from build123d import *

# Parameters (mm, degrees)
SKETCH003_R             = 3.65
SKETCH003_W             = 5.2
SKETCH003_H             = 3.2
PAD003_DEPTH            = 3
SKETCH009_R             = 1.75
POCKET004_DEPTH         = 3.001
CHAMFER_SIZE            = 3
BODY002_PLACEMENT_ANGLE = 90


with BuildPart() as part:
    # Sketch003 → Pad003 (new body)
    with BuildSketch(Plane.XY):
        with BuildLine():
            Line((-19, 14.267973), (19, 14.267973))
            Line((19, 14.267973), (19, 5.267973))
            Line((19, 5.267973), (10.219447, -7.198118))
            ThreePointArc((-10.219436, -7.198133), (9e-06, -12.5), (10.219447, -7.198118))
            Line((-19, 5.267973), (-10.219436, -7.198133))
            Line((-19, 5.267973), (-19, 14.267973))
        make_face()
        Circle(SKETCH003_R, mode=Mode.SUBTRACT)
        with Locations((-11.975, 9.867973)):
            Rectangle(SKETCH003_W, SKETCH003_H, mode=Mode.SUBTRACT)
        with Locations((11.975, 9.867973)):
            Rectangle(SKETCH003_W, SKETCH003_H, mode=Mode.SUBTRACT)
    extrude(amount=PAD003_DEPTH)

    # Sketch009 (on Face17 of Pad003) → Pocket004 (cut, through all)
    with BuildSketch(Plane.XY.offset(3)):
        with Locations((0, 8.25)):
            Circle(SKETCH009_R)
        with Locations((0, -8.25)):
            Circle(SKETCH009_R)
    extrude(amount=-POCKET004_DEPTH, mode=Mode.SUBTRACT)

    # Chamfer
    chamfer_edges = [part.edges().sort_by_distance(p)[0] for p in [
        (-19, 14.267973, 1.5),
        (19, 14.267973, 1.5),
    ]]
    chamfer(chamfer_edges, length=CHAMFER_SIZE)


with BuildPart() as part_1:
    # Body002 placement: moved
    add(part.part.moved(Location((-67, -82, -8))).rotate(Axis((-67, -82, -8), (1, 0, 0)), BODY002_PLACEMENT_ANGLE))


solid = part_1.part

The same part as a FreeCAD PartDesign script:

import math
import FreeCAD as App
import Part
import Sketcher
from FreeCAD import Vector
Q = App.Units.Quantity


def edges_at(feature, points):
    """Names of the edges that pass closest to the given points."""
    edges = feature.Shape.Edges
    near = lambda p: min(range(len(edges)), key=lambda i: edges[i].distToShape(Part.Vertex(*p))[0])
    return sorted({f"Edge{near(p) + 1}" for p in points})


def add_polygon(sketch, points):
    """Adds a closed chain of lines whose ends are joined by coincident constraints."""
    first, n = sketch.GeometryCount, len(points)
    for a, b in zip(points, points[1:] + points[:1]):
        sketch.addGeometry(Part.LineSegment(App.Vector(*a, 0), App.Vector(*b, 0)), False)
    for i in range(n):
        sketch.addConstraint(Sketcher.Constraint("Coincident", first + i, 2, first + (i + 1) % n, 1))

doc = App.newDocument("Part")
body = doc.addObject("PartDesign::Body", "Body")

sketch1 = doc.addObject("Sketcher::SketchObject", "Sketch")
body.addObject(sketch1)
sketch1.AttachmentSupport = (doc.XY_Plane, [""])
sketch1.MapMode = "FlatFace"
sketch1.addGeometry(Part.LineSegment(Vector(19, 14.3, 0), Vector(-19, 14.3, 0)), False)
sketch1.addGeometry(Part.LineSegment(Vector(-19, 14.3, 0), Vector(-19, 5.3, 0)), False)
sketch1.addGeometry(Part.LineSegment(Vector(-19, 5.3, 0), Vector(-10.2, -7.2, 0)), False)
sketch1.addGeometry(Part.ArcOfCircle(Part.Circle(Vector(0, 0, 0), Vector(0, 0, 1), 12.5), math.radians(-145), math.radians(-35)), False)
sketch1.addGeometry(Part.LineSegment(Vector(10.2, -7.2, 0), Vector(19, 5.3, 0)), False)
sketch1.addGeometry(Part.LineSegment(Vector(19, 5.3, 0), Vector(19, 14.3, 0)), False)
sketch1.addGeometry(Part.Circle(Vector(0, 0, 0), Vector(0, 0, 1), 3.6), False)
add_polygon(sketch1, [(9.4, 8.3), (9.4, 11.5), (14.6, 11.5), (14.6, 8.3)])
add_polygon(sketch1, [(-14.6, 8.3), (-14.6, 11.5), (-9.4, 11.5), (-9.4, 8.3)])
sketch1.addConstraint([
    Sketcher.Constraint("Coincident", 0, 2, 1, 1),
    Sketcher.Constraint("Coincident", 1, 2, 2, 1),
    Sketcher.Constraint("Tangent", 2, 2, 3, 1),
    Sketcher.Constraint("Tangent", 3, 2, 4, 1),
    Sketcher.Constraint("Coincident", 4, 2, 5, 1),
    Sketcher.Constraint("Coincident", 5, 2, 0, 1),
    Sketcher.Constraint("Horizontal", 0),
    Sketcher.Constraint("Vertical", 1),
    Sketcher.Constraint("Vertical", 5),
    Sketcher.Constraint("Vertical", 7),
    Sketcher.Constraint("Horizontal", 8),
    Sketcher.Constraint("Vertical", 9),
    Sketcher.Constraint("Horizontal", 10),
    Sketcher.Constraint("Vertical", 11),
    Sketcher.Constraint("Horizontal", 12),
    Sketcher.Constraint("Vertical", 13),
    Sketcher.Constraint("Horizontal", 14),
    Sketcher.Constraint("Coincident", 3, 3, -1, 1),
    Sketcher.Constraint("Coincident", 6, 3, -1, 1),
    Sketcher.Constraint("Symmetric", 1, 2, 4, 2, -2),
    Sketcher.Constraint("Symmetric", 8, 2, 11, 2, -2),
    Sketcher.Constraint("Symmetric", 10, 2, 13, 2, -2),
    Sketcher.Constraint("Diameter", 6, Q("7.3 mm")),
    Sketcher.Constraint("Radius", 3, Q("12.5 mm")),
    Sketcher.Constraint("DistanceX", 0, 2, 0, 1, Q("38 mm")),
    Sketcher.Constraint("DistanceY", 1, 2, 1, 1, Q("9 mm")),
    Sketcher.Constraint("DistanceX", 8, 1, 8, 2, Q("5.2 mm")),
    Sketcher.Constraint("DistanceY", 7, 1, 7, 2, Q("3.2 mm")),
    Sketcher.Constraint("DistanceY", 4, 2, 9, 2, Q("3 mm")),
    Sketcher.Constraint("Distance", 4, Q("15.248001 mm")),
    Sketcher.Constraint("DistanceX", -1, 1, 7, 2, Q("9.375 mm")),
])
pad1 = doc.addObject("PartDesign::Pad", "Pad")
body.addObject(pad1)
pad1.Profile = sketch1
pad1.Length = 3

sketch2 = doc.addObject("Sketcher::SketchObject", "Sketch001")
body.addObject(sketch2)
sketch2.AttachmentSupport = (doc.XY_Plane, [""])
sketch2.MapMode = "FlatFace"
sketch2.AttachmentOffset = App.Placement(Vector(0, 0, 3), App.Rotation())
sketch2.addGeometry([
    Part.Circle(Vector(0, 8.2, 0), Vector(0, 0, 1), 1.8),
    Part.Circle(Vector(0, -8.2, 0), Vector(0, 0, 1), 1.8),
], False)
sketch2.addConstraint([
    Sketcher.Constraint("Equal", 0, 1),
    Sketcher.Constraint("Symmetric", 0, 3, 1, 3, -1, 1),
    Sketcher.Constraint("PointOnObject", 0, 3, -2),
    Sketcher.Constraint("Diameter", 0, Q("3.5 mm")),
    Sketcher.Constraint("DistanceY", 1, 3, 0, 3, Q("16.5 mm")),
])
pocket1 = doc.addObject("PartDesign::Pocket", "Pocket")
body.addObject(pocket1)
pocket1.Profile = sketch2
pocket1.Type = "ThroughAll"
doc.recompute()

chamfer = doc.addObject("PartDesign::Chamfer", "Chamfer")
body.addObject(chamfer)
chamfer.Base = (pocket1, edges_at(pocket1, [(-19, 14.268, 1.5), (19, 14.268, 1.5)]))
chamfer.Size = 3
body2 = doc.addObject("PartDesign::Body", "Body001")
doc.recompute()

body.Placement = App.Placement(Vector(-67, -82, -8), App.Rotation(Vector(1, 0, 0), 90))
boolean = doc.addObject("PartDesign::Boolean", "Boolean")
body2.addObject(boolean)
boolean.Type = "Fuse"
boolean.addObjects([body])

doc.recompute()
